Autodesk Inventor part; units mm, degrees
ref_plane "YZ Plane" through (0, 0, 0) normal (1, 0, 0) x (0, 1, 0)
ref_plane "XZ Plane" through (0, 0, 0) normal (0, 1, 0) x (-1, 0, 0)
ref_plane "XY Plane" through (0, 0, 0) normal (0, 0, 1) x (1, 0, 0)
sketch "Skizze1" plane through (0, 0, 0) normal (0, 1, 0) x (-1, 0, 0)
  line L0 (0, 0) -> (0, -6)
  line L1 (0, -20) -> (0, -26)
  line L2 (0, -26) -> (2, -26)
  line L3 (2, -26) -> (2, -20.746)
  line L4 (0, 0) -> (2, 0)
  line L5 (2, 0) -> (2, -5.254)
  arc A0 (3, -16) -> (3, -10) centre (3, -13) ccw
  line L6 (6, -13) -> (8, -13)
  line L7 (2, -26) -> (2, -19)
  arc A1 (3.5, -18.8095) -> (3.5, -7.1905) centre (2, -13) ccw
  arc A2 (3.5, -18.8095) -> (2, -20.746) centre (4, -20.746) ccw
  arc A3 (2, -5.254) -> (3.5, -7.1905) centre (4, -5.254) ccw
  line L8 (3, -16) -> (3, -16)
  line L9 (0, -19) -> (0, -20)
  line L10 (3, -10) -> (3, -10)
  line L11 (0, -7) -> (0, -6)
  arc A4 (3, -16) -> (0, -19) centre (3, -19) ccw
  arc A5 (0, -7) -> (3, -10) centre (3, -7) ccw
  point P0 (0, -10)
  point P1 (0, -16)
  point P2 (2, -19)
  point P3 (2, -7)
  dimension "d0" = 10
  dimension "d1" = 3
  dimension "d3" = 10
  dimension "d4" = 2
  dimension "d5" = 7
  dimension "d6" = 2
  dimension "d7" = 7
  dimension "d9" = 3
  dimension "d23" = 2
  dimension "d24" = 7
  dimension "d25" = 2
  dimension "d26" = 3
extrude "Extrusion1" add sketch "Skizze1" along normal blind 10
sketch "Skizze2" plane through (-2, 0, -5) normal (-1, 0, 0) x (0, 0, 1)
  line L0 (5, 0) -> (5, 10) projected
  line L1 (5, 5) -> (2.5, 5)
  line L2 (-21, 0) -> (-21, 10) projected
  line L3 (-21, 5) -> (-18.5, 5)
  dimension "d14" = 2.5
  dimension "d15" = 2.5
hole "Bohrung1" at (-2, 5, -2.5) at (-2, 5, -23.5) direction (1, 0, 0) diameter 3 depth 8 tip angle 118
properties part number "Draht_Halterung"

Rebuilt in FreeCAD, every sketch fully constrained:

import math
import FreeCAD as App
import Part
import Sketcher

V = App.Vector

doc = App.newDocument("Part")
params = doc.addObject("Spreadsheet::Sheet", "Params")
for row, (alias, value) in enumerate([
    ("sketch1_radius", "3 mm"),
    ("sketch1_radius2", "2 mm"),
    ("sketch1_width", "2 mm"),
    ("sketch1_height", "7 mm"),
    ("sketch1_radius3", "6 mm"),
    ("pad1_length", "10 mm"),
    ("sketch2_diameter", "3 mm"),
    ("hole_diameter", "3 mm"),
    ("hole_depth", "8 mm"),
], start=1):
    params.set(f"A{row}", alias)
    params.set(f"B{row}", "=" + value)
    params.setAlias(f"B{row}", alias)

body = doc.addObject("PartDesign::Body", "Body")

# Sketch on XZ plane
sketch1 = body.newObject("Sketcher::SketchObject", "Sketch")
sketch1.AttachmentSupport = (doc.getObject("XZ_Plane"), [""])
sketch1.MapMode = "FlatFace"
sketch1.addGeometry([
    Part.LineSegment(V(-2, 0, 0), V(0, 0, 0)),  # 0
    Part.LineSegment(V(0, 0, 0), V(0, -7, 0)),  # 1
    Part.ArcOfCircle(Part.Circle(V(-3, -7, 0), V(0, 0, 1), 3), math.radians(-90), math.radians(0)),  # 2
    Part.ArcOfCircle(Part.Circle(V(-3, -13, 0), V(0, 0, 1), 3), math.radians(90), math.radians(270)),  # 3
    Part.ArcOfCircle(Part.Circle(V(-3, -19, 0), V(0, 0, 1), 3), math.radians(0), math.radians(90)),  # 4
    Part.LineSegment(V(0, -19, 0), V(0, -26, 0)),  # 5
    Part.LineSegment(V(0, -26, 0), V(-2, -26, 0)),  # 6
    Part.LineSegment(V(-2, -26, 0), V(-2, -20.7, 0)),  # 7
    Part.ArcOfCircle(Part.Circle(V(-4, -20.7, 0), V(0, 0, 1), 2), math.radians(0), math.radians(76)),  # 8
    Part.ArcOfCircle(Part.Circle(V(-2, -13, 0), V(0, 0, 1), 6), math.radians(104), math.radians(256)),  # 9
    Part.ArcOfCircle(Part.Circle(V(-4, -5.3, 0), V(0, 0, 1), 2), math.radians(-76), math.radians(0)),  # 10
    Part.LineSegment(V(-2, -5.3, 0), V(-2, 0, 0)),  # 11
], False)
sketch1.addConstraint([
    Sketcher.Constraint("Coincident", 0, 2, 1, 1),
    Sketcher.Constraint("Tangent", 1, 2, 2, 2),
    Sketcher.Constraint("Tangent", 2, 1, 3, 1),
    Sketcher.Constraint("Tangent", 3, 2, 4, 2),
    Sketcher.Constraint("Tangent", 4, 1, 5, 1),
    Sketcher.Constraint("Coincident", 5, 2, 6, 1),
    Sketcher.Constraint("Coincident", 6, 2, 7, 1),
    Sketcher.Constraint("Tangent", 7, 2, 8, 1),
    Sketcher.Constraint("Tangent", 8, 2, 9, 2),
    Sketcher.Constraint("Tangent", 9, 1, 10, 1),
    Sketcher.Constraint("Tangent", 10, 2, 11, 1),
    Sketcher.Constraint("Coincident", 11, 2, 0, 1),
    Sketcher.Constraint("Horizontal", 0),
    Sketcher.Constraint("Vertical", 1),
    Sketcher.Constraint("Vertical", 5),
    Sketcher.Constraint("Horizontal", 6),
    Sketcher.Constraint("Vertical", 7),
    Sketcher.Constraint("Vertical", 11),
    Sketcher.Constraint("Coincident", 0, 2, -1, 1),
    Sketcher.Constraint("Equal", 2, 3),
    Sketcher.Constraint("Equal", 3, 4),
    Sketcher.Constraint("Equal", 8, 10),
    Sketcher.Constraint("PointOnObject", 4, 1, -2),
    Sketcher.Constraint("Horizontal", 3, 3, 9, 3),
    Sketcher.Constraint("Vertical", 2, 3, 3, 3),
    Sketcher.Constraint("Vertical", 8, 3, 10, 3),
    Sketcher.Constraint("Vertical", 9, 3, 6, 2),
    Sketcher.Constraint("Equal", 1, 5),
    Sketcher.Constraint("Radius", 2, 3.0),
    Sketcher.Constraint("Radius", 8, 2.0),
    Sketcher.Constraint("DistanceX", 0, 1, 0, 2, 2.0),
    Sketcher.Constraint("DistanceY", 1, 2, 1, 1, 7.0),
    Sketcher.Constraint("Radius", 9, 6.0),
])
sketch1.setExpression("Constraints[28]", "Params.sketch1_radius")
sketch1.setExpression("Constraints[29]", "Params.sketch1_radius2")
sketch1.setExpression("Constraints[30]", "Params.sketch1_width")
sketch1.setExpression("Constraints[31]", "Params.sketch1_height")
sketch1.setExpression("Constraints[32]", "Params.sketch1_radius3")
pad1 = body.newObject("PartDesign::Pad", "Pad")
pad1.Profile = sketch1
pad1.setExpression("Length", "Params.pad1_length")
pad1.Reversed = True

# Sketch on YZ plane
sketch2 = body.newObject("Sketcher::SketchObject", "Sketch001")
sketch2.AttachmentSupport = (doc.getObject("YZ_Plane"), [""])
sketch2.MapMode = "FlatFace"
sketch2.AttachmentOffset = App.Placement(V(0, 0, -2), App.Rotation())
sketch2.addGeometry([
    Part.Circle(V(5, -2.5, 0), V(0, 0, 1), 1.5),
    Part.Circle(V(5, -23.5, 0), V(0, 0, 1), 1.5),
], False)
sketch2.addConstraint([
    Sketcher.Constraint("Equal", 0, 1),
    Sketcher.Constraint("Vertical", 0, 3, 1, 3),
    Sketcher.Constraint("Diameter", 0, 3.0),
    Sketcher.Constraint("DistanceX", -1, 1, 0, 3, 5.0),
    Sketcher.Constraint("DistanceY", 1, 3, 0, 3, 21.0),
    Sketcher.Constraint("DistanceY", 0, 3, -1, 1, 2.5),
])
sketch2.setExpression("Constraints[2]", "Params.sketch2_diameter")
doc.recompute()
hole = body.newObject("PartDesign::Hole", "Hole")
hole.Profile = sketch2
hole.ThreadType = "None"
hole.setExpression("Diameter", "Params.hole_diameter")
hole.DepthType = "Dimension"
hole.setExpression("Depth", "Params.hole_depth")
hole.DrillPoint = "Angled"
hole.DrillPointAngle = 118
hole.Reversed = True

doc.recompute()
